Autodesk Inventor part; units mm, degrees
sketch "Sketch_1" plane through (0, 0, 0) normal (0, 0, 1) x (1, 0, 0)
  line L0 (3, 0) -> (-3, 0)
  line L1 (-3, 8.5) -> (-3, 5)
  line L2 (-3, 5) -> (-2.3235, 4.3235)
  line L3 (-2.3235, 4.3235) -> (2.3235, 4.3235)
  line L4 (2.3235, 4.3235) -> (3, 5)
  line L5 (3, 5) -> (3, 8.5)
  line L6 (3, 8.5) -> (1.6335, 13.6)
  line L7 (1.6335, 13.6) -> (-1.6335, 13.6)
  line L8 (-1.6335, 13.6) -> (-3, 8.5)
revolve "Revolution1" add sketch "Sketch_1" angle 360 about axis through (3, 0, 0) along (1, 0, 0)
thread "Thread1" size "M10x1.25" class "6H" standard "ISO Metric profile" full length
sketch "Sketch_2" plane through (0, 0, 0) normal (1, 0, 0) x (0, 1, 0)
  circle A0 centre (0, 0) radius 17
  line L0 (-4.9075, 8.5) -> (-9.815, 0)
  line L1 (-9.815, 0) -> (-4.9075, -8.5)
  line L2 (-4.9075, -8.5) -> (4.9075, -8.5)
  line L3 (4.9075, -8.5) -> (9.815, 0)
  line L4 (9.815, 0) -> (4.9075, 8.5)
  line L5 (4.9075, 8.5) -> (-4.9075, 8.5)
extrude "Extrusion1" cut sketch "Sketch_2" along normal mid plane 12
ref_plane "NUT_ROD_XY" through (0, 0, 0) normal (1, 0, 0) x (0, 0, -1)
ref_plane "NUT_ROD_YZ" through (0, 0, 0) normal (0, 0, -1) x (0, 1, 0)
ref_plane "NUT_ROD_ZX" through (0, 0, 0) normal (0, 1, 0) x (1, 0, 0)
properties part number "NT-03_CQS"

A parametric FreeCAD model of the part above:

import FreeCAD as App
import Part
import Sketcher
from FreeCAD import Vector
Q = App.Units.Quantity

doc = App.newDocument("Part")
body = doc.addObject("PartDesign::Body", "Body")

# Sketch on XY plane
sketch1 = body.newObject("Sketcher::SketchObject", "Sketch")
sketch1.AttachmentSupport = (doc.getObject("XY_Plane"), [""])
sketch1.MapMode = "FlatFace"
sketch1.addGeometry([
    Part.LineSegment(Vector(-1.6, 13.6, 0), Vector(-3, 8.5, 0)),  # 0
    Part.LineSegment(Vector(-3, 8.5, 0), Vector(-3, 5, 0)),  # 1
    Part.LineSegment(Vector(-3, 5, 0), Vector(-2.3, 4.3, 0)),  # 2
    Part.LineSegment(Vector(-2.3, 4.3, 0), Vector(2.3, 4.3, 0)),  # 3
    Part.LineSegment(Vector(2.3, 4.3, 0), Vector(3, 5, 0)),  # 4
    Part.LineSegment(Vector(3, 5, 0), Vector(3, 8.5, 0)),  # 5
    Part.LineSegment(Vector(3, 8.5, 0), Vector(1.6, 13.6, 0)),  # 6
    Part.LineSegment(Vector(1.6, 13.6, 0), Vector(-1.6, 13.6, 0)),  # 7
], False)
sketch1.addConstraint([
    Sketcher.Constraint("Coincident", 0, 2, 1, 1),
    Sketcher.Constraint("Coincident", 1, 2, 2, 1),
    Sketcher.Constraint("Coincident", 2, 2, 3, 1),
    Sketcher.Constraint("Coincident", 3, 2, 4, 1),
    Sketcher.Constraint("Coincident", 4, 2, 5, 1),
    Sketcher.Constraint("Coincident", 5, 2, 6, 1),
    Sketcher.Constraint("Coincident", 6, 2, 7, 1),
    Sketcher.Constraint("Coincident", 7, 2, 0, 1),
    Sketcher.Constraint("Vertical", 1),
    Sketcher.Constraint("Horizontal", 3),
    Sketcher.Constraint("Vertical", 5),
    Sketcher.Constraint("Horizontal", 7),
    Sketcher.Constraint("Symmetric", 1, 2, 4, 2, -2),
    Sketcher.Constraint("Perpendicular", 2, 4),
    Sketcher.Constraint("Horizontal", 0, 2, 5, 2),
    Sketcher.Constraint("Equal", 2, 4),
    Sketcher.Constraint("Equal", 0, 6),
    Sketcher.Constraint("Angle", 0, Q("-104.9996 deg")),
    Sketcher.Constraint("DistanceY", 1, 2, 1, 1, Q("3.5 mm")),
    Sketcher.Constraint("DistanceX", 0, 2, -1, 1, Q("3 mm")),
    Sketcher.Constraint("DistanceY", -1, 1, 1, 2, Q("5 mm")),
    Sketcher.Constraint("DistanceY", -1, 1, 6, 2, Q("13.6 mm")),
    Sketcher.Constraint("DistanceX", 3, 1, 3, 2, Q("4.647 mm")),
])
revolution = body.newObject("PartDesign::Revolution", "Revolution")
revolution.Profile = sketch1
revolution.ReferenceAxis = (sketch1, ["H_Axis"])
revolution.Angle = 360

# Sketch on YZ plane
sketch2 = body.newObject("Sketcher::SketchObject", "Sketch001")
sketch2.AttachmentSupport = (doc.getObject("YZ_Plane"), [""])
sketch2.MapMode = "FlatFace"
sketch2.addGeometry([
    Part.Circle(Vector(0, 0, 0), Vector(0, 0, 1), 17),  # 0
    Part.LineSegment(Vector(-10, 0, 0), Vector(-5, 8, 0)),  # 1
    Part.LineSegment(Vector(-5, 8, 0), Vector(5, 8, 0)),  # 2
    Part.LineSegment(Vector(5, 8, 0), Vector(10, 0, 0)),  # 3
    Part.LineSegment(Vector(10, 0, 0), Vector(5, -8, 0)),  # 4
    Part.LineSegment(Vector(5, -8, 0), Vector(-5, -8, 0)),  # 5
    Part.LineSegment(Vector(-5, -8, 0), Vector(-10, 0, 0)),  # 6
], False)
sketch2.addConstraint([
    Sketcher.Constraint("Coincident", 1, 2, 2, 1),
    Sketcher.Constraint("Coincident", 2, 2, 3, 1),
    Sketcher.Constraint("Coincident", 3, 2, 4, 1),
    Sketcher.Constraint("Coincident", 4, 2, 5, 1),
    Sketcher.Constraint("Coincident", 5, 2, 6, 1),
    Sketcher.Constraint("Coincident", 6, 2, 1, 1),
    Sketcher.Constraint("Horizontal", 2),
    Sketcher.Constraint("Horizontal", 5),
    Sketcher.Constraint("Coincident", 0, 3, -1, 1),
    Sketcher.Constraint("Symmetric", 1, 2, 4, 2, -1, 1),
    Sketcher.Constraint("Symmetric", 3, 2, 6, 2, -1, 1),
    Sketcher.Constraint("PointOnObject", 3, 2, -1),
    Sketcher.Constraint("Parallel", 3, 6),
    Sketcher.Constraint("Vertical", 2, 2, 4, 2),
    Sketcher.Constraint("Diameter", 0, Q("34 mm")),
    Sketcher.Constraint("Angle", 1, Q("60 deg")),
    Sketcher.Constraint("DistanceY", 4, 2, 2, 2, Q("17 mm")),
    Sketcher.Constraint("DistanceX", 2, 1, 2, 2, Q("9.815 mm")),
])
pocket1 = body.newObject("PartDesign::Pocket", "Pocket")
pocket1.Profile = sketch2
pocket1.Length = 12
pocket1.Midplane = True

doc.recompute()
